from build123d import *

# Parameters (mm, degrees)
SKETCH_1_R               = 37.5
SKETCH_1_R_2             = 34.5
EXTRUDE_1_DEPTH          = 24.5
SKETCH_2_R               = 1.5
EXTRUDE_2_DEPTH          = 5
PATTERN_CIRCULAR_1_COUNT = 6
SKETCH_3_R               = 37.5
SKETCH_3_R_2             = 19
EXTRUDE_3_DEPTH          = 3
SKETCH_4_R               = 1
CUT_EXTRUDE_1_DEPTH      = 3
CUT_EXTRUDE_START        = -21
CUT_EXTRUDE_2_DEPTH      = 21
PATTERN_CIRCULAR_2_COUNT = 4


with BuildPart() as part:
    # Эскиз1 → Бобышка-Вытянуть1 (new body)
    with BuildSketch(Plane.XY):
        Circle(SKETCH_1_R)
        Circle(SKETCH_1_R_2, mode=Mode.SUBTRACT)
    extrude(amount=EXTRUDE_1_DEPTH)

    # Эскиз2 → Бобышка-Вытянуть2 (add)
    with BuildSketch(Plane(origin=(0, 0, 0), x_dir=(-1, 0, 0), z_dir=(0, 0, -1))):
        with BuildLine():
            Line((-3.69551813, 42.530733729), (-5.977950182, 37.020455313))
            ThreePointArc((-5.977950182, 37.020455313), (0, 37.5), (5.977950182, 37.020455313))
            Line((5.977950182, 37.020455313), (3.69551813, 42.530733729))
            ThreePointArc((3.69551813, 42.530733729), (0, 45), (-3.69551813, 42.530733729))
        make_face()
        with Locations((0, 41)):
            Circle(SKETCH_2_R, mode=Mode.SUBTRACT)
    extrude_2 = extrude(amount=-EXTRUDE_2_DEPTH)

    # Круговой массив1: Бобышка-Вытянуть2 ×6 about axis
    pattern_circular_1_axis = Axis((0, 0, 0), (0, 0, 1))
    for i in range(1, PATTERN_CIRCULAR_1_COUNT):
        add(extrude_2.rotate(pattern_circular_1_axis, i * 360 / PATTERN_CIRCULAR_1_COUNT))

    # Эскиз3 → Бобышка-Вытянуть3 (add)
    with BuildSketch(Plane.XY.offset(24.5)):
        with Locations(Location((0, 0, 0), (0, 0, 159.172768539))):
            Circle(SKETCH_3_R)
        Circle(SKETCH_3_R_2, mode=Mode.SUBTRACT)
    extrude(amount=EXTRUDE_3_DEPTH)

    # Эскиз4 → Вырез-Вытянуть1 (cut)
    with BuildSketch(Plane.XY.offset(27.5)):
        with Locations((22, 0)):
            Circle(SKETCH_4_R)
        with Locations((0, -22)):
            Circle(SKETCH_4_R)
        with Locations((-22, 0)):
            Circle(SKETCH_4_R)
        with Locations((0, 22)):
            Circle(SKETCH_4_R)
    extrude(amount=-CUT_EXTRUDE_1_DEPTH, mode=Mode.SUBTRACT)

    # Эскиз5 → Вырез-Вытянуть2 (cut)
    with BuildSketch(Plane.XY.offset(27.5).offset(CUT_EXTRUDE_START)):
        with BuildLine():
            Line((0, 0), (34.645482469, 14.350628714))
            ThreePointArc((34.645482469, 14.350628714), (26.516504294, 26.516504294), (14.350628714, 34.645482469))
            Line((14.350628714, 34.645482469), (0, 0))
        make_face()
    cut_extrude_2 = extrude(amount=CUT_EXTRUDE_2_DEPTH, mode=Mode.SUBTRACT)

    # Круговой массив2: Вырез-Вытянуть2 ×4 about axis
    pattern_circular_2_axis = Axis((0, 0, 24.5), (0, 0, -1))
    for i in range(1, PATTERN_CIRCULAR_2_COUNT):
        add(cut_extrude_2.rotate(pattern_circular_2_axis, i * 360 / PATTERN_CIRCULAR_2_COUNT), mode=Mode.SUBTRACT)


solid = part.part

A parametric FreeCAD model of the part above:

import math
import FreeCAD as App
import Part
import Sketcher
Q = App.Units.Quantity

doc = App.newDocument("Part")
params = doc.addObject("Spreadsheet::Sheet", "Params")
for row, (alias, value) in enumerate([
    ("sketch1_diameter", "75 mm"),
    ("sketch1_diameter2", "69 mm"),
    ("pad1_length", "24.5 mm"),
    ("sketch2_diameter", "3 mm"),
    ("sketch2_radius", "4 mm"),
    ("sketch2_radius2", "37.5 mm"),
    ("pad2_length", "5 mm"),
    ("sketch3_diameter", "75 mm"),
    ("sketch3_diameter2", "38 mm"),
    ("pad3_length", "3 mm"),
    ("sketch4_diameter", "2 mm"),
    ("pocket1_length", "3 mm"),
    ("sketch5_radius", "37.5 mm"),
    ("pocket2_length", "21 mm"),
], start=1):
    params.set(f"A{row}", alias)
    params.set(f"B{row}", "=" + value)
    params.setAlias(f"B{row}", alias)

body = doc.addObject("PartDesign::Body", "Body")

# Sketch on XY plane
sketch1 = body.newObject("Sketcher::SketchObject", "Sketch")
sketch1.AttachmentSupport = (doc.getObject("XY_Plane"), [""])
sketch1.MapMode = "FlatFace"
sketch1.addGeometry(Part.Circle(App.Vector(0, 0, 0), App.Vector(0, 0, 1), 38), False)
sketch1.addGeometry(Part.Circle(App.Vector(0, 0, 0), App.Vector(0, 0, 1), 34), False)
sketch1.addConstraint(Sketcher.Constraint("Coincident", 0, 3, -1, 1))
sketch1.addConstraint(Sketcher.Constraint("Coincident", 1, 3, -1, 1))
sketch1.addConstraint(Sketcher.Constraint("Diameter", 0, Q("75 mm")))
sketch1.addConstraint(Sketcher.Constraint("Diameter", 1, Q("69 mm")))
sketch1.setExpression("Constraints[2]", "Params.sketch1_diameter")
sketch1.setExpression("Constraints[3]", "Params.sketch1_diameter2")
pad1 = body.newObject("PartDesign::Pad", "Pad")
pad1.Profile = sketch1
pad1.setExpression("Length", "Params.pad1_length")

# Sketch on XY plane
sketch2 = body.newObject("Sketcher::SketchObject", "Sketch001")
sketch2.AttachmentSupport = (doc.getObject("XY_Plane"), [""])
sketch2.MapMode = "FlatFace"
sketch2.addGeometry(Part.LineSegment(App.Vector(3.7, 42.5, 0), App.Vector(6, 37, 0)), False)
sketch2.addGeometry(Part.ArcOfCircle(Part.Circle(App.Vector(0, 0, 0), App.Vector(0, 0, 1), 37.5), math.radians(80.83), math.radians(99.17)), False)
sketch2.addGeometry(Part.LineSegment(App.Vector(-6, 37, 0), App.Vector(-3.7, 42.5, 0)), False)
sketch2.addGeometry(Part.ArcOfCircle(Part.Circle(App.Vector(0, 41, 0), App.Vector(0, 0, 1), 4), math.radians(22), math.radians(158)), False)
sketch2.addGeometry(Part.Circle(App.Vector(0, 41, 0), App.Vector(0, 0, 1), 1.5), False)
sketch2.addConstraint(Sketcher.Constraint("Coincident", 0, 2, 1, 1))
sketch2.addConstraint(Sketcher.Constraint("Coincident", 1, 2, 2, 1))
sketch2.addConstraint(Sketcher.Constraint("Tangent", 2, 2, 3, 2))
sketch2.addConstraint(Sketcher.Constraint("Tangent", 3, 1, 0, 1))
sketch2.addConstraint(Sketcher.Constraint("Coincident", 1, 3, -1, 1))
sketch2.addConstraint(Sketcher.Constraint("Coincident", 4, 3, 3, 3))
sketch2.addConstraint(Sketcher.Constraint("Symmetric", 2, 2, 3, 1, -2))
sketch2.addConstraint(Sketcher.Constraint("Diameter", 4, Q("3 mm")))
sketch2.addConstraint(Sketcher.Constraint("Radius", 3, Q("4 mm")))
sketch2.addConstraint(Sketcher.Constraint("Radius", 1, Q("37.5 mm")))
sketch2.addConstraint(Sketcher.Constraint("DistanceY", -1, 1, 3, 3, Q("41 mm")))
sketch2.addConstraint(Sketcher.Constraint("Angle", 0, Q("-67.5 deg")))
sketch2.setExpression("Constraints[7]", "Params.sketch2_diameter")
sketch2.setExpression("Constraints[8]", "Params.sketch2_radius")
sketch2.setExpression("Constraints[9]", "Params.sketch2_radius2")
pad2 = body.newObject("PartDesign::Pad", "Pad001")
pad2.Profile = sketch2
pad2.setExpression("Length", "Params.pad2_length")
doc.recompute()

polarpattern = body.newObject("PartDesign::PolarPattern", "PolarPattern")
polarpattern.Originals = [pad2]
polarpattern.Axis = (doc.getObject("Z_Axis"), [""])
polarpattern.Angle = 360
polarpattern.Occurrences = 6
body.Tip = polarpattern

# Sketch on XY plane
sketch3 = body.newObject("Sketcher::SketchObject", "Sketch002")
sketch3.AttachmentSupport = (doc.getObject("XY_Plane"), [""])
sketch3.MapMode = "FlatFace"
sketch3.AttachmentOffset = App.Placement(App.Vector(0, 0, 24.5), App.Rotation())
sketch3.addGeometry(Part.Circle(App.Vector(0, 0, 0), App.Vector(0, 0, 1), 38), False)
sketch3.addGeometry(Part.Circle(App.Vector(0, 0, 0), App.Vector(0, 0, 1), 19), False)
sketch3.addConstraint(Sketcher.Constraint("Coincident", 0, 3, -1, 1))
sketch3.addConstraint(Sketcher.Constraint("Coincident", 1, 3, -1, 1))
sketch3.addConstraint(Sketcher.Constraint("Diameter", 0, Q("75 mm")))
sketch3.addConstraint(Sketcher.Constraint("Diameter", 1, Q("38 mm")))
sketch3.setExpression("Constraints[2]", "Params.sketch3_diameter")
sketch3.setExpression("Constraints[3]", "Params.sketch3_diameter2")
pad3 = body.newObject("PartDesign::Pad", "Pad002")
pad3.Profile = sketch3
pad3.setExpression("Length", "Params.pad3_length")

# Sketch on XY plane
sketch4 = body.newObject("Sketcher::SketchObject", "Sketch003")
sketch4.AttachmentSupport = (doc.getObject("XY_Plane"), [""])
sketch4.MapMode = "FlatFace"
sketch4.AttachmentOffset = App.Placement(App.Vector(0, 0, 27.5), App.Rotation())
sketch4.addGeometry(Part.Circle(App.Vector(22, 0, 0), App.Vector(0, 0, 1), 1), False)
sketch4.addGeometry(Part.Circle(App.Vector(0, -22, 0), App.Vector(0, 0, 1), 1), False)
sketch4.addGeometry(Part.Circle(App.Vector(-22, 0, 0), App.Vector(0, 0, 1), 1), False)
sketch4.addGeometry(Part.Circle(App.Vector(0, 22, 0), App.Vector(0, 0, 1), 1), False)
sketch4.addConstraint(Sketcher.Constraint("Equal", 0, 1))
sketch4.addConstraint(Sketcher.Constraint("Equal", 1, 2))
sketch4.addConstraint(Sketcher.Constraint("Equal", 2, 3))
sketch4.addConstraint(Sketcher.Constraint("Symmetric", 0, 3, 2, 3, -1, 1))
sketch4.addConstraint(Sketcher.Constraint("Symmetric", 1, 3, 3, 3, -1, 1))
sketch4.addConstraint(Sketcher.Constraint("PointOnObject", 0, 3, -1))
sketch4.addConstraint(Sketcher.Constraint("PointOnObject", 1, 3, -2))
sketch4.addConstraint(Sketcher.Constraint("Diameter", 0, Q("2 mm")))
sketch4.addConstraint(Sketcher.Constraint("DistanceX", -1, 1, 0, 3, Q("22 mm")))
sketch4.addConstraint(Sketcher.Constraint("DistanceY", 1, 3, -1, 1, Q("22 mm")))
sketch4.setExpression("Constraints[7]", "Params.sketch4_diameter")
pocket1 = body.newObject("PartDesign::Pocket", "Pocket")
pocket1.Profile = sketch4
pocket1.setExpression("Length", "Params.pocket1_length")

# Sketch on XY plane
sketch5 = body.newObject("Sketcher::SketchObject", "Sketch004")
sketch5.AttachmentSupport = (doc.getObject("XY_Plane"), [""])
sketch5.MapMode = "FlatFace"
sketch5.AttachmentOffset = App.Placement(App.Vector(0, 0, 6.5), App.Rotation())
sketch5.addGeometry(Part.LineSegment(App.Vector(0, 0, 0), App.Vector(35, 14, 0)), False)
sketch5.addGeometry(Part.ArcOfCircle(Part.Circle(App.Vector(0, 0, 0), App.Vector(0, 0, 1), 38), math.radians(23), math.radians(67)), False)
sketch5.addGeometry(Part.LineSegment(App.Vector(14, 35, 0), App.Vector(0, 0, 0)), False)
sketch5.addConstraint(Sketcher.Constraint("Coincident", 0, 2, 1, 1))
sketch5.addConstraint(Sketcher.Constraint("Coincident", 1, 2, 2, 1))
sketch5.addConstraint(Sketcher.Constraint("Coincident", 2, 2, 0, 1))
sketch5.addConstraint(Sketcher.Constraint("Coincident", 1, 3, -1, 1))
sketch5.addConstraint(Sketcher.Constraint("Coincident", 2, 2, -1, 1))
sketch5.addConstraint(Sketcher.Constraint("Radius", 1, Q("37.5 mm")))
sketch5.addConstraint(Sketcher.Constraint("Angle", 0, Q("22.5 deg")))
sketch5.addConstraint(Sketcher.Constraint("Angle", 2, Q("-112.5 deg")))
sketch5.setExpression("Constraints[5]", "Params.sketch5_radius")
pocket2 = body.newObject("PartDesign::Pocket", "Pocket001")
pocket2.Profile = sketch5
pocket2.setExpression("Length", "Params.pocket2_length")
pocket2.Reversed = True
doc.recompute()

polarpattern2 = body.newObject("PartDesign::PolarPattern", "PolarPattern001")
polarpattern2.Originals = [pocket2]
polarpattern2.Axis = (doc.getObject("Z_Axis"), [""])
polarpattern2.Angle = 360
polarpattern2.Occurrences = 4
body.Tip = polarpattern2

doc.recompute()
